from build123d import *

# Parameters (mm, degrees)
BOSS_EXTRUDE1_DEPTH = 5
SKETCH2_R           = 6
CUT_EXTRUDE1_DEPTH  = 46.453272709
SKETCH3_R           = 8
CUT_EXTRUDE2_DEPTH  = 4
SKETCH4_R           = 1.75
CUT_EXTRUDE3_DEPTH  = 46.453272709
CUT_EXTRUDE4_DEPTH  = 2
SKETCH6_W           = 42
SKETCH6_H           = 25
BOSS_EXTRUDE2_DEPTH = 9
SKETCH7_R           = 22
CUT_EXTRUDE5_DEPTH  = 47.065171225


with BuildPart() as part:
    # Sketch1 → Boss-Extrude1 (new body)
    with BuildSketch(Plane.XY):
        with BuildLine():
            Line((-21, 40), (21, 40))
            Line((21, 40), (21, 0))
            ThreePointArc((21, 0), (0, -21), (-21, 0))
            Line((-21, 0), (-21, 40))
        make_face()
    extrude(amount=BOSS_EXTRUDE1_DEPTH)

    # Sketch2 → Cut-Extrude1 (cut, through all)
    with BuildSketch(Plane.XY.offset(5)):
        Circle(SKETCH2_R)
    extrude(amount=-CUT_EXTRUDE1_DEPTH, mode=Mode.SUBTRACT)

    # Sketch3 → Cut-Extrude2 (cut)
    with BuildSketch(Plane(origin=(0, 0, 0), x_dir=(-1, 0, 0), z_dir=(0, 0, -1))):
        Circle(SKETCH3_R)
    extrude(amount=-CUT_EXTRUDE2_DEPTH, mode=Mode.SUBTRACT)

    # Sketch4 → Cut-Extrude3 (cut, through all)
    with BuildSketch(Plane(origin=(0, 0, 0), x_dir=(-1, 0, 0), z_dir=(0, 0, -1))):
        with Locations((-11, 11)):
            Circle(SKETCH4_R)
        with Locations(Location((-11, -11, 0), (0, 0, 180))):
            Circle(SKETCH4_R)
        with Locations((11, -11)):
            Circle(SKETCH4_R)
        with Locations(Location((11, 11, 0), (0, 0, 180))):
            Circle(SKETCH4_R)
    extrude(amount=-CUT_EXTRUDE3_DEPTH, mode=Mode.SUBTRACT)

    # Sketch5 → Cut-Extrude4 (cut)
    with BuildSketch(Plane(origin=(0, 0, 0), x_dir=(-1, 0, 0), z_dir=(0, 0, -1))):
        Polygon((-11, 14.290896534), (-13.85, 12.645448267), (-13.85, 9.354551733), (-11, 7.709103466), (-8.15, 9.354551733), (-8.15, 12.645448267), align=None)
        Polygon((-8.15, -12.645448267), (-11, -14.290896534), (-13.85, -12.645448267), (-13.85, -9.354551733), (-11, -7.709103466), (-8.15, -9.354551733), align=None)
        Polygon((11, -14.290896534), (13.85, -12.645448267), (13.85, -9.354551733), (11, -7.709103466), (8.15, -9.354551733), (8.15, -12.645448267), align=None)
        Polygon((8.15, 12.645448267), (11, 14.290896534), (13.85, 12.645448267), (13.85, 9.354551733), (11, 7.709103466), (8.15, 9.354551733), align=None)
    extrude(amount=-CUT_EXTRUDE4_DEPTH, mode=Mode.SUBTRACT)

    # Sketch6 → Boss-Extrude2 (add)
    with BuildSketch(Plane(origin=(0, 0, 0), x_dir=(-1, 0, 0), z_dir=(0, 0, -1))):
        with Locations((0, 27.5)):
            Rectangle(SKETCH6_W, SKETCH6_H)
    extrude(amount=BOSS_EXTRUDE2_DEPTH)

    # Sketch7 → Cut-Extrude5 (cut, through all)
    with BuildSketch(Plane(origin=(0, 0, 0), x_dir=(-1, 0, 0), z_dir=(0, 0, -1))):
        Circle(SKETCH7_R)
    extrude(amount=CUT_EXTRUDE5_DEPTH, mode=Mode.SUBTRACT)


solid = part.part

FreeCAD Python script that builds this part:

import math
import FreeCAD as App
import Part
import Sketcher
Q = App.Units.Quantity


def add_polygon(sketch, points):
    """Adds a closed chain of lines whose ends are joined by coincident constraints."""
    first, n = sketch.GeometryCount, len(points)
    for a, b in zip(points, points[1:] + points[:1]):
        sketch.addGeometry(Part.LineSegment(App.Vector(*a, 0), App.Vector(*b, 0)), False)
    for i in range(n):
        sketch.addConstraint(Sketcher.Constraint("Coincident", first + i, 2, first + (i + 1) % n, 1))

doc = App.newDocument("Part")
body = doc.addObject("PartDesign::Body", "Body")

sketch1 = doc.addObject("Sketcher::SketchObject", "Sketch")
body.addObject(sketch1)
sketch1.AttachmentSupport = (doc.XY_Plane, [""])
sketch1.MapMode = "FlatFace"
sketch1.addGeometry([
    Part.LineSegment(App.Vector(21, 40, 0), App.Vector(-21, 40, 0)),
    Part.LineSegment(App.Vector(-21, 40, 0), App.Vector(-21, 0, 0)),
    Part.ArcOfCircle(Part.Circle(App.Vector(0, 0, 0), App.Vector(0, 0, 1), 21), math.radians(180), math.radians(360)),
    Part.LineSegment(App.Vector(21, 0, 0), App.Vector(21, 40, 0)),
], False)
sketch1.addConstraint([
    Sketcher.Constraint("Coincident", 0, 2, 1, 1),
    Sketcher.Constraint("Tangent", 1, 2, 2, 1),
    Sketcher.Constraint("Tangent", 2, 2, 3, 1),
    Sketcher.Constraint("Coincident", 3, 2, 0, 1),
    Sketcher.Constraint("Horizontal", 0),
    Sketcher.Constraint("Vertical", 1),
    Sketcher.Constraint("Vertical", 3),
    Sketcher.Constraint("Coincident", 2, 3, -1, 1),
    Sketcher.Constraint("Radius", 2, 21.0),
    Sketcher.Constraint("DistanceY", 1, 2, 1, 1, 40.0),
])
pad1 = doc.addObject("PartDesign::Pad", "Pad")
body.addObject(pad1)
pad1.Profile = sketch1
pad1.Length = 5

sketch2 = doc.addObject("Sketcher::SketchObject", "Sketch001")
body.addObject(sketch2)
sketch2.AttachmentSupport = (doc.XY_Plane, [""])
sketch2.MapMode = "FlatFace"
sketch2.AttachmentOffset = App.Placement(App.Vector(0, 0, 5), App.Rotation())
sketch2.addGeometry(Part.Circle(App.Vector(0, 0, 0), App.Vector(0, 0, 1), 6), False)
sketch2.addConstraint([
    Sketcher.Constraint("Coincident", 0, 3, -1, 1),
    Sketcher.Constraint("Diameter", 0, 12.0),
])
pocket1 = doc.addObject("PartDesign::Pocket", "Pocket")
body.addObject(pocket1)
pocket1.Profile = sketch2
pocket1.Type = "ThroughAll"

sketch3 = doc.addObject("Sketcher::SketchObject", "Sketch002")
body.addObject(sketch3)
sketch3.AttachmentSupport = (doc.XY_Plane, [""])
sketch3.MapMode = "FlatFace"
sketch3.addGeometry(Part.Circle(App.Vector(0, 0, 0), App.Vector(0, 0, 1), 8), False)
sketch3.addConstraint([
    Sketcher.Constraint("Coincident", 0, 3, -1, 1),
    Sketcher.Constraint("Diameter", 0, 16.0),
])
pocket2 = doc.addObject("PartDesign::Pocket", "Pocket001")
body.addObject(pocket2)
pocket2.Profile = sketch3
pocket2.Length = 4
pocket2.Reversed = True

sketch4 = doc.addObject("Sketcher::SketchObject", "Sketch003")
body.addObject(sketch4)
sketch4.AttachmentSupport = (doc.XY_Plane, [""])
sketch4.MapMode = "FlatFace"
sketch4.addGeometry([
    Part.Circle(App.Vector(11, 11, 0), App.Vector(0, 0, 1), 1.8),
    Part.Circle(App.Vector(11, -11, 0), App.Vector(0, 0, 1), 1.8),
    Part.Circle(App.Vector(-11, -11, 0), App.Vector(0, 0, 1), 1.8),
    Part.Circle(App.Vector(-11, 11, 0), App.Vector(0, 0, 1), 1.8),
], False)
sketch4.addConstraint([
    Sketcher.Constraint("Equal", 0, 1),
    Sketcher.Constraint("Equal", 1, 2),
    Sketcher.Constraint("Equal", 2, 3),
    Sketcher.Constraint("Symmetric", 0, 3, 2, 3, -1, 1),
    Sketcher.Constraint("Symmetric", 1, 3, 3, 3, -1, 1),
    Sketcher.Constraint("Symmetric", 1, 3, 2, 3, -2),
    Sketcher.Constraint("Diameter", 0, 3.5),
    Sketcher.Constraint("DistanceX", -1, 1, 0, 3, 11.0),
    Sketcher.Constraint("DistanceY", -1, 1, 0, 3, 11.0),
])
pocket3 = doc.addObject("PartDesign::Pocket", "Pocket002")
body.addObject(pocket3)
pocket3.Profile = sketch4
pocket3.Type = "ThroughAll"
pocket3.Reversed = True

sketch5 = doc.addObject("Sketcher::SketchObject", "Sketch004")
body.addObject(sketch5)
sketch5.AttachmentSupport = (doc.XY_Plane, [""])
sketch5.MapMode = "FlatFace"
add_polygon(sketch5, [(11, 14.3), (13.8, 12.6), (13.8, 9.4), (11, 7.7), (8.2, 9.4), (8.2, 12.6)])
add_polygon(sketch5, [(11, -14.3), (8.2, -12.6), (8.2, -9.4), (11, -7.7), (13.8, -9.4), (13.8, -12.6)])
add_polygon(sketch5, [(-11, -14.3), (-13.8, -12.6), (-13.8, -9.4), (-11, -7.7), (-8.2, -9.4), (-8.2, -12.6)])
add_polygon(sketch5, [(-11, 14.3), (-8.2, 12.6), (-8.2, 9.4), (-11, 7.7), (-13.8, 9.4), (-13.8, 12.6)])
sketch5.addConstraint([
    Sketcher.Constraint("Vertical", 1),
    Sketcher.Constraint("Vertical", 4),
    Sketcher.Constraint("Vertical", 7),
    Sketcher.Constraint("Vertical", 10),
    Sketcher.Constraint("Vertical", 13),
    Sketcher.Constraint("Vertical", 16),
    Sketcher.Constraint("Vertical", 19),
    Sketcher.Constraint("Vertical", 22),
    Sketcher.Constraint("Symmetric", 0, 2, 12, 2, -1, 1),
    Sketcher.Constraint("Symmetric", 2, 2, 14, 2, -1, 1),
    Sketcher.Constraint("Symmetric", 3, 2, 15, 2, -1, 1),
    Sketcher.Constraint("Symmetric", 5, 2, 17, 2, -1, 1),
    Sketcher.Constraint("Symmetric", 6, 2, 18, 2, -1, 1),
    Sketcher.Constraint("Symmetric", 8, 2, 20, 2, -1, 1),
    Sketcher.Constraint("Symmetric", 9, 2, 21, 2, -1, 1),
    Sketcher.Constraint("Symmetric", 11, 2, 23, 2, -1, 1),
    Sketcher.Constraint("Symmetric", 10, 2, 12, 2, -2),
    Sketcher.Constraint("Symmetric", 8, 2, 14, 2, -2),
    Sketcher.Constraint("Symmetric", 7, 2, 15, 2, -2),
    Sketcher.Constraint("Symmetric", 11, 2, 17, 2, -2),
    Sketcher.Constraint("Parallel", 0, 3),
    Sketcher.Constraint("Parallel", 2, 5),
    Sketcher.Constraint("Parallel", 3, 6),
    Sketcher.Constraint("Parallel", 5, 8),
    Sketcher.Constraint("Parallel", 6, 9),
    Sketcher.Constraint("Parallel", 11, 14),
    Sketcher.Constraint("Parallel", 14, 17),
    Sketcher.Constraint("Parallel", 17, 20),
    Sketcher.Constraint("Parallel", 20, 23),
    Sketcher.Constraint("Horizontal", 1, 2, 3, 2),
    Sketcher.Constraint("Horizontal", 0, 2, 4, 2),
    Sketcher.Constraint("Angle", 0, Q("-30 deg")),
    Sketcher.Constraint("DistanceX", -1, 1, 2, 2, 11.0),
    Sketcher.Constraint("DistanceY", 6, 2, 3, 2, 22.0),
    Sketcher.Constraint("DistanceX", 3, 2, 1, 2, 5.7),
    Sketcher.Constraint("DistanceY", 1, 2, 1, 1, 3.290897),
])
pocket4 = doc.addObject("PartDesign::Pocket", "Pocket003")
body.addObject(pocket4)
pocket4.Profile = sketch5
pocket4.Length = 2
pocket4.Reversed = True

sketch6 = doc.addObject("Sketcher::SketchObject", "Sketch005")
body.addObject(sketch6)
sketch6.AttachmentSupport = (doc.XY_Plane, [""])
sketch6.MapMode = "FlatFace"
add_polygon(sketch6, [(21, 40), (21, 15), (-21, 15), (-21, 40)])
sketch6.addConstraint([
    Sketcher.Constraint("Vertical", 0),
    Sketcher.Constraint("Horizontal", 1),
    Sketcher.Constraint("Vertical", 2),
    Sketcher.Constraint("Horizontal", 3),
    Sketcher.Constraint("DistanceX", 1, 2, 1, 1, 42.0),
    Sketcher.Constraint("DistanceY", 0, 2, 0, 1, 25.0),
    Sketcher.Constraint("DistanceX", -1, 1, 0, 2, 21.0),
    Sketcher.Constraint("DistanceY", -1, 1, 0, 2, 15.0),
])
pad2 = doc.addObject("PartDesign::Pad", "Pad001")
body.addObject(pad2)
pad2.Profile = sketch6
pad2.Length = 9
pad2.Reversed = True

sketch7 = doc.addObject("Sketcher::SketchObject", "Sketch006")
body.addObject(sketch7)
sketch7.AttachmentSupport = (doc.XY_Plane, [""])
sketch7.MapMode = "FlatFace"
sketch7.addGeometry(Part.Circle(App.Vector(0, 0, 0), App.Vector(0, 0, 1), 22), False)
sketch7.addConstraint([
    Sketcher.Constraint("Coincident", 0, 3, -1, 1),
    Sketcher.Constraint("Diameter", 0, 44.0),
])
pocket5 = doc.addObject("PartDesign::Pocket", "Pocket004")
body.addObject(pocket5)
pocket5.Profile = sketch7
pocket5.Type = "ThroughAll"

doc.recompute()
